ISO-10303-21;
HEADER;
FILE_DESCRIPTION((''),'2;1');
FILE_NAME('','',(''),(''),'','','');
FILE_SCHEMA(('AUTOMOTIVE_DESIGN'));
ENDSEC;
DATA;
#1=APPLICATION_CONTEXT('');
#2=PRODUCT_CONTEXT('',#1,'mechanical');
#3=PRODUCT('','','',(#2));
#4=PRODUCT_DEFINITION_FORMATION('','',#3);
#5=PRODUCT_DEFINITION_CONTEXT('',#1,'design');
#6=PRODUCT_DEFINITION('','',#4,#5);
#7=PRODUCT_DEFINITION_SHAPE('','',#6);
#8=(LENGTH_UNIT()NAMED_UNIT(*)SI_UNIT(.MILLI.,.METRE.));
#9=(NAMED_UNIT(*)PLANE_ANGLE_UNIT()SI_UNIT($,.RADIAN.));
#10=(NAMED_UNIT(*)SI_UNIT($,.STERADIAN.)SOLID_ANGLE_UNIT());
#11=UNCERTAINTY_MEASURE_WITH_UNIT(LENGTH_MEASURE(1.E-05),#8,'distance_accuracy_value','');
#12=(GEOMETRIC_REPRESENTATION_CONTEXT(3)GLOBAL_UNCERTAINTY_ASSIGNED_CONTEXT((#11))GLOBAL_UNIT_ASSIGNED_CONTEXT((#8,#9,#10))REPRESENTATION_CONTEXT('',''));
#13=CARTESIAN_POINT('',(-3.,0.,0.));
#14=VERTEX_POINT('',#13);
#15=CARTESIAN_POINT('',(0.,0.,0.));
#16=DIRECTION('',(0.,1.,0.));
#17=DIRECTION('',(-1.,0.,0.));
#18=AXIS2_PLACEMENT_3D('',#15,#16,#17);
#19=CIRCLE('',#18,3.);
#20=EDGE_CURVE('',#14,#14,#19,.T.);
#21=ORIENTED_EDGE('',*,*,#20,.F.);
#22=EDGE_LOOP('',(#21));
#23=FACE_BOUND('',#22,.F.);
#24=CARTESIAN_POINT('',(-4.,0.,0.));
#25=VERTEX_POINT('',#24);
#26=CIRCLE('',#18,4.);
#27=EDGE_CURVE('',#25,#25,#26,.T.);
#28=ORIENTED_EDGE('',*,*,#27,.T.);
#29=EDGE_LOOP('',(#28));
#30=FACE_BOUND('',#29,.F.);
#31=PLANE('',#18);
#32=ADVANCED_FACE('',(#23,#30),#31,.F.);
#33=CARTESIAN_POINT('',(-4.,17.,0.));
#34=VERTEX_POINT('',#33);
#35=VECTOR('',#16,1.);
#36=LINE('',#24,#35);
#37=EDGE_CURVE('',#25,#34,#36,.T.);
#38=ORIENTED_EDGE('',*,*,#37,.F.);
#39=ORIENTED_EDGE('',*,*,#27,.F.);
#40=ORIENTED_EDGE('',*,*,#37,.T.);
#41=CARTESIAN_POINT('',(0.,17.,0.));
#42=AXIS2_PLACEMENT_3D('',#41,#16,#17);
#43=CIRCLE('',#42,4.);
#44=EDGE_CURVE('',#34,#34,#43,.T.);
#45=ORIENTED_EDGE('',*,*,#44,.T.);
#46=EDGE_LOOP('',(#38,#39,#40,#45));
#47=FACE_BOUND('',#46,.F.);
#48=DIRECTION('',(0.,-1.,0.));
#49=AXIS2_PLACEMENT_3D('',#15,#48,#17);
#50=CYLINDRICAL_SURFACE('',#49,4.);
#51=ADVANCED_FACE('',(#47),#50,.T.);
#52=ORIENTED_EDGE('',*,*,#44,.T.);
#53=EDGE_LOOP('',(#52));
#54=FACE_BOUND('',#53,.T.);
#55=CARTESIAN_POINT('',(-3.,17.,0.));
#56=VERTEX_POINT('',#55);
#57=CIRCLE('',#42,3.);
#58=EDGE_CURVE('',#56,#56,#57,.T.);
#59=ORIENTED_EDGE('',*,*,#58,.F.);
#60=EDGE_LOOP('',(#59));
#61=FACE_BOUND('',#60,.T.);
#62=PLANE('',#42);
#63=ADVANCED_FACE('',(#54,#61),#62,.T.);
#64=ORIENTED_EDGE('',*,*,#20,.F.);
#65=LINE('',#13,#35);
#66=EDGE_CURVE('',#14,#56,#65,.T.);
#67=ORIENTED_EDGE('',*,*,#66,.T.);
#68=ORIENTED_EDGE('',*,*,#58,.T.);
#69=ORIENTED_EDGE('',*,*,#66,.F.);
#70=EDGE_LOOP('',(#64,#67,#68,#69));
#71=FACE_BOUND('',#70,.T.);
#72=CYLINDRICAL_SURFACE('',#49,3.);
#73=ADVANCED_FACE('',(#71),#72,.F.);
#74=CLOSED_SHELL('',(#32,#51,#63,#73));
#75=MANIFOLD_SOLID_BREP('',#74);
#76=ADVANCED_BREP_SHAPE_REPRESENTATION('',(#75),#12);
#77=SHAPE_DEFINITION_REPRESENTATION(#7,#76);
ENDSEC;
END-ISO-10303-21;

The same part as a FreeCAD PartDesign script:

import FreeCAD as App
import Part
import Sketcher
Q = App.Units.Quantity

doc = App.newDocument("Part")
params = doc.addObject("Spreadsheet::Sheet", "Params")
for row, (alias, value) in enumerate([
    ("sketch1_diameter", "8 mm"),
    ("sketch1_diameter2", "6 mm"),
    ("pad1_length", "17 mm"),
], start=1):
    params.set(f"A{row}", alias)
    params.set(f"B{row}", "=" + value)
    params.setAlias(f"B{row}", alias)

body = doc.addObject("PartDesign::Body", "Body")

# Sketch on XZ plane
sketch1 = body.newObject("Sketcher::SketchObject", "Sketch")
sketch1.AttachmentSupport = (doc.getObject("XZ_Plane"), [""])
sketch1.MapMode = "FlatFace"
sketch1.addGeometry([
    Part.Circle(App.Vector(0, 0, 0), App.Vector(0, 0, 1), 4),
    Part.Circle(App.Vector(0, 0, 0), App.Vector(0, 0, 1), 3),
], False)
sketch1.addConstraint([
    Sketcher.Constraint("Coincident", 0, 3, -1, 1),
    Sketcher.Constraint("Coincident", 1, 3, -1, 1),
    Sketcher.Constraint("Diameter", 0, Q("8 mm")),
    Sketcher.Constraint("Diameter", 1, Q("6 mm")),
])
sketch1.setExpression("Constraints[2]", "Params.sketch1_diameter")
sketch1.setExpression("Constraints[3]", "Params.sketch1_diameter2")
pad1 = body.newObject("PartDesign::Pad", "Pad")
pad1.Profile = sketch1
pad1.setExpression("Length", "Params.pad1_length")
pad1.Reversed = True

doc.recompute()
